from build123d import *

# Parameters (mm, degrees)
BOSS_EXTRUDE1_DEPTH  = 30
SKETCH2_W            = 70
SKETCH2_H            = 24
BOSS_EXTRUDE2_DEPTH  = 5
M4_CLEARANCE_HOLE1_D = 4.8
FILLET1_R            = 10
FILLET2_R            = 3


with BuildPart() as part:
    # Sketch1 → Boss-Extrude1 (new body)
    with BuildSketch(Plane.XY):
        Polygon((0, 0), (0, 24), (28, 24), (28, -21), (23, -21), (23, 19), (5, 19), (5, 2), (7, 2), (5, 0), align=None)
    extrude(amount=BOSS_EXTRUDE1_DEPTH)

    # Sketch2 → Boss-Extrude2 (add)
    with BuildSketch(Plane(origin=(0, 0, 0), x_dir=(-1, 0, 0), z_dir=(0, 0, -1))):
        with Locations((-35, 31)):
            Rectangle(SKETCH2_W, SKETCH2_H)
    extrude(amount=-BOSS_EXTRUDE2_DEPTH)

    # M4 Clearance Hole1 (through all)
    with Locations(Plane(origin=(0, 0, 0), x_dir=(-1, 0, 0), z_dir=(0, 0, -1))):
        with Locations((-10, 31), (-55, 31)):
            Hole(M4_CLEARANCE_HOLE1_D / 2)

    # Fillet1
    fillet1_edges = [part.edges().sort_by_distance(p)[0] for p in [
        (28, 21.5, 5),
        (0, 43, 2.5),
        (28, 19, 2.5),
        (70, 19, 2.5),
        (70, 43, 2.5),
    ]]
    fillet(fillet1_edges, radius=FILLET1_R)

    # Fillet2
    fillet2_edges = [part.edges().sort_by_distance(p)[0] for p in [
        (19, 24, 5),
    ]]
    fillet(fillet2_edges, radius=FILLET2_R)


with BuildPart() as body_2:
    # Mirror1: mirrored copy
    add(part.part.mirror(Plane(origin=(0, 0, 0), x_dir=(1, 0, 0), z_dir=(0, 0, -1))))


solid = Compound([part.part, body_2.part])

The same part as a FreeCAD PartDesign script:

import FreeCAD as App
import Part
import Sketcher


def edges_at(feature, points):
    """Names of the edges that pass closest to the given points."""
    edges = feature.Shape.Edges
    near = lambda p: min(range(len(edges)), key=lambda i: edges[i].distToShape(Part.Vertex(*p))[0])
    return sorted({f"Edge{near(p) + 1}" for p in points})


def add_polygon(sketch, points):
    """Adds a closed chain of lines whose ends are joined by coincident constraints."""
    first, n = sketch.GeometryCount, len(points)
    for a, b in zip(points, points[1:] + points[:1]):
        sketch.addGeometry(Part.LineSegment(App.Vector(*a, 0), App.Vector(*b, 0)), False)
    for i in range(n):
        sketch.addConstraint(Sketcher.Constraint("Coincident", first + i, 2, first + (i + 1) % n, 1))

doc = App.newDocument("Part")
params = doc.addObject("Spreadsheet::Sheet", "Params")
for row, (alias, value) in enumerate([
    ("sketch1_width", "5 mm"),
    ("sketch1_width2", "2 mm"),
    ("sketch1_width3", "18 mm"),
    ("sketch1_height", "24 mm"),
    ("sketch1_height2", "17 mm"),
    ("pad1_length", "30 mm"),
    ("sketch2_width", "70 mm"),
    ("sketch2_height", "24 mm"),
    ("pad2_length", "5 mm"),
    ("sketch3_diameter", "4.8 mm"),
    ("hole_diameter", "4.8 mm"),
    ("fillet_radius", "10 mm"),
    ("fillet2_radius", "3 mm"),
], start=1):
    params.set(f"A{row}", alias)
    params.set(f"B{row}", "=" + value)
    params.setAlias(f"B{row}", alias)

body = doc.addObject("PartDesign::Body", "Body")

sketch1 = body.newObject("Sketcher::SketchObject", "Sketch")
sketch1.AttachmentSupport = (doc.getObject("XY_Plane"), [""])
sketch1.MapMode = "FlatFace"
add_polygon(sketch1, [(0, 24), (0, 0), (5, 0), (7, 2), (5, 2), (5, 19), (23, 19), (23, -21), (28, -21), (28, 24)])
sketch1.addConstraint([
    Sketcher.Constraint("Vertical", 0),
    Sketcher.Constraint("Horizontal", 1),
    Sketcher.Constraint("Horizontal", 3),
    Sketcher.Constraint("Vertical", 4),
    Sketcher.Constraint("Horizontal", 5),
    Sketcher.Constraint("Vertical", 6),
    Sketcher.Constraint("Horizontal", 7),
    Sketcher.Constraint("Vertical", 8),
    Sketcher.Constraint("Horizontal", 9),
    Sketcher.Constraint("Coincident", 0, 2, -1, 1),
    Sketcher.Constraint("Vertical", 1, 2, 3, 2),
    Sketcher.Constraint("Equal", 1, 7),
    Sketcher.Constraint("DistanceX", 1, 1, 1, 2, 5.0),
    Sketcher.Constraint("DistanceX", 3, 2, 3, 1, 2.0),
    Sketcher.Constraint("DistanceX", 5, 1, 5, 2, 18.0),
    Sketcher.Constraint("DistanceY", 0, 2, 0, 1, 24.0),
    Sketcher.Constraint("DistanceY", 4, 1, 4, 2, 17.0),
    Sketcher.Constraint("DistanceY", 6, 2, 6, 1, 40.0),
    Sketcher.Constraint("DistanceY", 8, 1, 8, 2, 45.0),
])
sketch1.setExpression("Constraints[22]", "Params.sketch1_width")
sketch1.setExpression("Constraints[23]", "Params.sketch1_width2")
sketch1.setExpression("Constraints[24]", "Params.sketch1_width3")
sketch1.setExpression("Constraints[25]", "Params.sketch1_height")
sketch1.setExpression("Constraints[26]", "Params.sketch1_height2")
pad1 = body.newObject("PartDesign::Pad", "Pad")
pad1.Profile = sketch1
pad1.setExpression("Length", "Params.pad1_length")

sketch2 = body.newObject("Sketcher::SketchObject", "Sketch001")
sketch2.AttachmentSupport = (doc.getObject("XY_Plane"), [""])
sketch2.MapMode = "FlatFace"
add_polygon(sketch2, [(70, 43), (70, 19), (0, 19), (0, 43)])
sketch2.addConstraint([
    Sketcher.Constraint("Vertical", 0),
    Sketcher.Constraint("Horizontal", 1),
    Sketcher.Constraint("Vertical", 2),
    Sketcher.Constraint("Horizontal", 3),
    Sketcher.Constraint("PointOnObject", 1, 2, -2),
    Sketcher.Constraint("DistanceX", 1, 2, 1, 1, 70.0),
    Sketcher.Constraint("DistanceY", 0, 2, 0, 1, 24.0),
    Sketcher.Constraint("DistanceY", -1, 1, 0, 2, 19.0),
])
sketch2.setExpression("Constraints[9]", "Params.sketch2_width")
sketch2.setExpression("Constraints[10]", "Params.sketch2_height")
pad2 = body.newObject("PartDesign::Pad", "Pad001")
pad2.Profile = sketch2
pad2.setExpression("Length", "Params.pad2_length")

sketch3 = body.newObject("Sketcher::SketchObject", "Sketch002")
sketch3.AttachmentSupport = (doc.getObject("XY_Plane"), [""])
sketch3.MapMode = "FlatFace"
sketch3.addGeometry([
    Part.Circle(App.Vector(10, 31, 0), App.Vector(0, 0, 1), 2.4),
    Part.Circle(App.Vector(55, 31, 0), App.Vector(0, 0, 1), 2.4),
], False)
sketch3.addConstraint([
    Sketcher.Constraint("Equal", 0, 1),
    Sketcher.Constraint("Horizontal", 0, 3, 1, 3),
    Sketcher.Constraint("Diameter", 0, 4.8),
    Sketcher.Constraint("DistanceX", -1, 1, 0, 3, 10.0),
    Sketcher.Constraint("DistanceY", -1, 1, 0, 3, 31.0),
    Sketcher.Constraint("DistanceX", -1, 1, 1, 3, 55.0),
])
sketch3.setExpression("Constraints[2]", "Params.sketch3_diameter")
doc.recompute()
hole = body.newObject("PartDesign::Hole", "Hole")
hole.Profile = sketch3
hole.ThreadType = "None"
hole.setExpression("Diameter", "Params.hole_diameter")
hole.DepthType = "ThroughAll"
hole.Reversed = True
doc.recompute()

fillet = body.newObject("PartDesign::Fillet", "Fillet")
fillet.Base = (hole, edges_at(hole, [
    (28, 21.5, 5),
    (0, 43, 2.5),
    (28, 19, 2.5),
    (70, 19, 2.5),
    (70, 43, 2.5),
]))
fillet.setExpression("Radius", "Params.fillet_radius")
doc.recompute()

fillet2 = body.newObject("PartDesign::Fillet", "Fillet001")
fillet2.Base = (fillet, edges_at(fillet, [(19, 24, 5)]))
fillet2.setExpression("Radius", "Params.fillet2_radius")
body2 = doc.addObject("PartDesign::Body", "Body001")
doc.recompute()

mirroring = doc.addObject("Part::Mirroring", "Mirroring")
mirroring.Source = body
mirroring.Base = App.Vector(0, 0, 0)
mirroring.Normal = App.Vector(0, 0, -1)
body2.BaseFeature = mirroring
doc.recompute()
mirroring.Visibility = False

doc.recompute()
